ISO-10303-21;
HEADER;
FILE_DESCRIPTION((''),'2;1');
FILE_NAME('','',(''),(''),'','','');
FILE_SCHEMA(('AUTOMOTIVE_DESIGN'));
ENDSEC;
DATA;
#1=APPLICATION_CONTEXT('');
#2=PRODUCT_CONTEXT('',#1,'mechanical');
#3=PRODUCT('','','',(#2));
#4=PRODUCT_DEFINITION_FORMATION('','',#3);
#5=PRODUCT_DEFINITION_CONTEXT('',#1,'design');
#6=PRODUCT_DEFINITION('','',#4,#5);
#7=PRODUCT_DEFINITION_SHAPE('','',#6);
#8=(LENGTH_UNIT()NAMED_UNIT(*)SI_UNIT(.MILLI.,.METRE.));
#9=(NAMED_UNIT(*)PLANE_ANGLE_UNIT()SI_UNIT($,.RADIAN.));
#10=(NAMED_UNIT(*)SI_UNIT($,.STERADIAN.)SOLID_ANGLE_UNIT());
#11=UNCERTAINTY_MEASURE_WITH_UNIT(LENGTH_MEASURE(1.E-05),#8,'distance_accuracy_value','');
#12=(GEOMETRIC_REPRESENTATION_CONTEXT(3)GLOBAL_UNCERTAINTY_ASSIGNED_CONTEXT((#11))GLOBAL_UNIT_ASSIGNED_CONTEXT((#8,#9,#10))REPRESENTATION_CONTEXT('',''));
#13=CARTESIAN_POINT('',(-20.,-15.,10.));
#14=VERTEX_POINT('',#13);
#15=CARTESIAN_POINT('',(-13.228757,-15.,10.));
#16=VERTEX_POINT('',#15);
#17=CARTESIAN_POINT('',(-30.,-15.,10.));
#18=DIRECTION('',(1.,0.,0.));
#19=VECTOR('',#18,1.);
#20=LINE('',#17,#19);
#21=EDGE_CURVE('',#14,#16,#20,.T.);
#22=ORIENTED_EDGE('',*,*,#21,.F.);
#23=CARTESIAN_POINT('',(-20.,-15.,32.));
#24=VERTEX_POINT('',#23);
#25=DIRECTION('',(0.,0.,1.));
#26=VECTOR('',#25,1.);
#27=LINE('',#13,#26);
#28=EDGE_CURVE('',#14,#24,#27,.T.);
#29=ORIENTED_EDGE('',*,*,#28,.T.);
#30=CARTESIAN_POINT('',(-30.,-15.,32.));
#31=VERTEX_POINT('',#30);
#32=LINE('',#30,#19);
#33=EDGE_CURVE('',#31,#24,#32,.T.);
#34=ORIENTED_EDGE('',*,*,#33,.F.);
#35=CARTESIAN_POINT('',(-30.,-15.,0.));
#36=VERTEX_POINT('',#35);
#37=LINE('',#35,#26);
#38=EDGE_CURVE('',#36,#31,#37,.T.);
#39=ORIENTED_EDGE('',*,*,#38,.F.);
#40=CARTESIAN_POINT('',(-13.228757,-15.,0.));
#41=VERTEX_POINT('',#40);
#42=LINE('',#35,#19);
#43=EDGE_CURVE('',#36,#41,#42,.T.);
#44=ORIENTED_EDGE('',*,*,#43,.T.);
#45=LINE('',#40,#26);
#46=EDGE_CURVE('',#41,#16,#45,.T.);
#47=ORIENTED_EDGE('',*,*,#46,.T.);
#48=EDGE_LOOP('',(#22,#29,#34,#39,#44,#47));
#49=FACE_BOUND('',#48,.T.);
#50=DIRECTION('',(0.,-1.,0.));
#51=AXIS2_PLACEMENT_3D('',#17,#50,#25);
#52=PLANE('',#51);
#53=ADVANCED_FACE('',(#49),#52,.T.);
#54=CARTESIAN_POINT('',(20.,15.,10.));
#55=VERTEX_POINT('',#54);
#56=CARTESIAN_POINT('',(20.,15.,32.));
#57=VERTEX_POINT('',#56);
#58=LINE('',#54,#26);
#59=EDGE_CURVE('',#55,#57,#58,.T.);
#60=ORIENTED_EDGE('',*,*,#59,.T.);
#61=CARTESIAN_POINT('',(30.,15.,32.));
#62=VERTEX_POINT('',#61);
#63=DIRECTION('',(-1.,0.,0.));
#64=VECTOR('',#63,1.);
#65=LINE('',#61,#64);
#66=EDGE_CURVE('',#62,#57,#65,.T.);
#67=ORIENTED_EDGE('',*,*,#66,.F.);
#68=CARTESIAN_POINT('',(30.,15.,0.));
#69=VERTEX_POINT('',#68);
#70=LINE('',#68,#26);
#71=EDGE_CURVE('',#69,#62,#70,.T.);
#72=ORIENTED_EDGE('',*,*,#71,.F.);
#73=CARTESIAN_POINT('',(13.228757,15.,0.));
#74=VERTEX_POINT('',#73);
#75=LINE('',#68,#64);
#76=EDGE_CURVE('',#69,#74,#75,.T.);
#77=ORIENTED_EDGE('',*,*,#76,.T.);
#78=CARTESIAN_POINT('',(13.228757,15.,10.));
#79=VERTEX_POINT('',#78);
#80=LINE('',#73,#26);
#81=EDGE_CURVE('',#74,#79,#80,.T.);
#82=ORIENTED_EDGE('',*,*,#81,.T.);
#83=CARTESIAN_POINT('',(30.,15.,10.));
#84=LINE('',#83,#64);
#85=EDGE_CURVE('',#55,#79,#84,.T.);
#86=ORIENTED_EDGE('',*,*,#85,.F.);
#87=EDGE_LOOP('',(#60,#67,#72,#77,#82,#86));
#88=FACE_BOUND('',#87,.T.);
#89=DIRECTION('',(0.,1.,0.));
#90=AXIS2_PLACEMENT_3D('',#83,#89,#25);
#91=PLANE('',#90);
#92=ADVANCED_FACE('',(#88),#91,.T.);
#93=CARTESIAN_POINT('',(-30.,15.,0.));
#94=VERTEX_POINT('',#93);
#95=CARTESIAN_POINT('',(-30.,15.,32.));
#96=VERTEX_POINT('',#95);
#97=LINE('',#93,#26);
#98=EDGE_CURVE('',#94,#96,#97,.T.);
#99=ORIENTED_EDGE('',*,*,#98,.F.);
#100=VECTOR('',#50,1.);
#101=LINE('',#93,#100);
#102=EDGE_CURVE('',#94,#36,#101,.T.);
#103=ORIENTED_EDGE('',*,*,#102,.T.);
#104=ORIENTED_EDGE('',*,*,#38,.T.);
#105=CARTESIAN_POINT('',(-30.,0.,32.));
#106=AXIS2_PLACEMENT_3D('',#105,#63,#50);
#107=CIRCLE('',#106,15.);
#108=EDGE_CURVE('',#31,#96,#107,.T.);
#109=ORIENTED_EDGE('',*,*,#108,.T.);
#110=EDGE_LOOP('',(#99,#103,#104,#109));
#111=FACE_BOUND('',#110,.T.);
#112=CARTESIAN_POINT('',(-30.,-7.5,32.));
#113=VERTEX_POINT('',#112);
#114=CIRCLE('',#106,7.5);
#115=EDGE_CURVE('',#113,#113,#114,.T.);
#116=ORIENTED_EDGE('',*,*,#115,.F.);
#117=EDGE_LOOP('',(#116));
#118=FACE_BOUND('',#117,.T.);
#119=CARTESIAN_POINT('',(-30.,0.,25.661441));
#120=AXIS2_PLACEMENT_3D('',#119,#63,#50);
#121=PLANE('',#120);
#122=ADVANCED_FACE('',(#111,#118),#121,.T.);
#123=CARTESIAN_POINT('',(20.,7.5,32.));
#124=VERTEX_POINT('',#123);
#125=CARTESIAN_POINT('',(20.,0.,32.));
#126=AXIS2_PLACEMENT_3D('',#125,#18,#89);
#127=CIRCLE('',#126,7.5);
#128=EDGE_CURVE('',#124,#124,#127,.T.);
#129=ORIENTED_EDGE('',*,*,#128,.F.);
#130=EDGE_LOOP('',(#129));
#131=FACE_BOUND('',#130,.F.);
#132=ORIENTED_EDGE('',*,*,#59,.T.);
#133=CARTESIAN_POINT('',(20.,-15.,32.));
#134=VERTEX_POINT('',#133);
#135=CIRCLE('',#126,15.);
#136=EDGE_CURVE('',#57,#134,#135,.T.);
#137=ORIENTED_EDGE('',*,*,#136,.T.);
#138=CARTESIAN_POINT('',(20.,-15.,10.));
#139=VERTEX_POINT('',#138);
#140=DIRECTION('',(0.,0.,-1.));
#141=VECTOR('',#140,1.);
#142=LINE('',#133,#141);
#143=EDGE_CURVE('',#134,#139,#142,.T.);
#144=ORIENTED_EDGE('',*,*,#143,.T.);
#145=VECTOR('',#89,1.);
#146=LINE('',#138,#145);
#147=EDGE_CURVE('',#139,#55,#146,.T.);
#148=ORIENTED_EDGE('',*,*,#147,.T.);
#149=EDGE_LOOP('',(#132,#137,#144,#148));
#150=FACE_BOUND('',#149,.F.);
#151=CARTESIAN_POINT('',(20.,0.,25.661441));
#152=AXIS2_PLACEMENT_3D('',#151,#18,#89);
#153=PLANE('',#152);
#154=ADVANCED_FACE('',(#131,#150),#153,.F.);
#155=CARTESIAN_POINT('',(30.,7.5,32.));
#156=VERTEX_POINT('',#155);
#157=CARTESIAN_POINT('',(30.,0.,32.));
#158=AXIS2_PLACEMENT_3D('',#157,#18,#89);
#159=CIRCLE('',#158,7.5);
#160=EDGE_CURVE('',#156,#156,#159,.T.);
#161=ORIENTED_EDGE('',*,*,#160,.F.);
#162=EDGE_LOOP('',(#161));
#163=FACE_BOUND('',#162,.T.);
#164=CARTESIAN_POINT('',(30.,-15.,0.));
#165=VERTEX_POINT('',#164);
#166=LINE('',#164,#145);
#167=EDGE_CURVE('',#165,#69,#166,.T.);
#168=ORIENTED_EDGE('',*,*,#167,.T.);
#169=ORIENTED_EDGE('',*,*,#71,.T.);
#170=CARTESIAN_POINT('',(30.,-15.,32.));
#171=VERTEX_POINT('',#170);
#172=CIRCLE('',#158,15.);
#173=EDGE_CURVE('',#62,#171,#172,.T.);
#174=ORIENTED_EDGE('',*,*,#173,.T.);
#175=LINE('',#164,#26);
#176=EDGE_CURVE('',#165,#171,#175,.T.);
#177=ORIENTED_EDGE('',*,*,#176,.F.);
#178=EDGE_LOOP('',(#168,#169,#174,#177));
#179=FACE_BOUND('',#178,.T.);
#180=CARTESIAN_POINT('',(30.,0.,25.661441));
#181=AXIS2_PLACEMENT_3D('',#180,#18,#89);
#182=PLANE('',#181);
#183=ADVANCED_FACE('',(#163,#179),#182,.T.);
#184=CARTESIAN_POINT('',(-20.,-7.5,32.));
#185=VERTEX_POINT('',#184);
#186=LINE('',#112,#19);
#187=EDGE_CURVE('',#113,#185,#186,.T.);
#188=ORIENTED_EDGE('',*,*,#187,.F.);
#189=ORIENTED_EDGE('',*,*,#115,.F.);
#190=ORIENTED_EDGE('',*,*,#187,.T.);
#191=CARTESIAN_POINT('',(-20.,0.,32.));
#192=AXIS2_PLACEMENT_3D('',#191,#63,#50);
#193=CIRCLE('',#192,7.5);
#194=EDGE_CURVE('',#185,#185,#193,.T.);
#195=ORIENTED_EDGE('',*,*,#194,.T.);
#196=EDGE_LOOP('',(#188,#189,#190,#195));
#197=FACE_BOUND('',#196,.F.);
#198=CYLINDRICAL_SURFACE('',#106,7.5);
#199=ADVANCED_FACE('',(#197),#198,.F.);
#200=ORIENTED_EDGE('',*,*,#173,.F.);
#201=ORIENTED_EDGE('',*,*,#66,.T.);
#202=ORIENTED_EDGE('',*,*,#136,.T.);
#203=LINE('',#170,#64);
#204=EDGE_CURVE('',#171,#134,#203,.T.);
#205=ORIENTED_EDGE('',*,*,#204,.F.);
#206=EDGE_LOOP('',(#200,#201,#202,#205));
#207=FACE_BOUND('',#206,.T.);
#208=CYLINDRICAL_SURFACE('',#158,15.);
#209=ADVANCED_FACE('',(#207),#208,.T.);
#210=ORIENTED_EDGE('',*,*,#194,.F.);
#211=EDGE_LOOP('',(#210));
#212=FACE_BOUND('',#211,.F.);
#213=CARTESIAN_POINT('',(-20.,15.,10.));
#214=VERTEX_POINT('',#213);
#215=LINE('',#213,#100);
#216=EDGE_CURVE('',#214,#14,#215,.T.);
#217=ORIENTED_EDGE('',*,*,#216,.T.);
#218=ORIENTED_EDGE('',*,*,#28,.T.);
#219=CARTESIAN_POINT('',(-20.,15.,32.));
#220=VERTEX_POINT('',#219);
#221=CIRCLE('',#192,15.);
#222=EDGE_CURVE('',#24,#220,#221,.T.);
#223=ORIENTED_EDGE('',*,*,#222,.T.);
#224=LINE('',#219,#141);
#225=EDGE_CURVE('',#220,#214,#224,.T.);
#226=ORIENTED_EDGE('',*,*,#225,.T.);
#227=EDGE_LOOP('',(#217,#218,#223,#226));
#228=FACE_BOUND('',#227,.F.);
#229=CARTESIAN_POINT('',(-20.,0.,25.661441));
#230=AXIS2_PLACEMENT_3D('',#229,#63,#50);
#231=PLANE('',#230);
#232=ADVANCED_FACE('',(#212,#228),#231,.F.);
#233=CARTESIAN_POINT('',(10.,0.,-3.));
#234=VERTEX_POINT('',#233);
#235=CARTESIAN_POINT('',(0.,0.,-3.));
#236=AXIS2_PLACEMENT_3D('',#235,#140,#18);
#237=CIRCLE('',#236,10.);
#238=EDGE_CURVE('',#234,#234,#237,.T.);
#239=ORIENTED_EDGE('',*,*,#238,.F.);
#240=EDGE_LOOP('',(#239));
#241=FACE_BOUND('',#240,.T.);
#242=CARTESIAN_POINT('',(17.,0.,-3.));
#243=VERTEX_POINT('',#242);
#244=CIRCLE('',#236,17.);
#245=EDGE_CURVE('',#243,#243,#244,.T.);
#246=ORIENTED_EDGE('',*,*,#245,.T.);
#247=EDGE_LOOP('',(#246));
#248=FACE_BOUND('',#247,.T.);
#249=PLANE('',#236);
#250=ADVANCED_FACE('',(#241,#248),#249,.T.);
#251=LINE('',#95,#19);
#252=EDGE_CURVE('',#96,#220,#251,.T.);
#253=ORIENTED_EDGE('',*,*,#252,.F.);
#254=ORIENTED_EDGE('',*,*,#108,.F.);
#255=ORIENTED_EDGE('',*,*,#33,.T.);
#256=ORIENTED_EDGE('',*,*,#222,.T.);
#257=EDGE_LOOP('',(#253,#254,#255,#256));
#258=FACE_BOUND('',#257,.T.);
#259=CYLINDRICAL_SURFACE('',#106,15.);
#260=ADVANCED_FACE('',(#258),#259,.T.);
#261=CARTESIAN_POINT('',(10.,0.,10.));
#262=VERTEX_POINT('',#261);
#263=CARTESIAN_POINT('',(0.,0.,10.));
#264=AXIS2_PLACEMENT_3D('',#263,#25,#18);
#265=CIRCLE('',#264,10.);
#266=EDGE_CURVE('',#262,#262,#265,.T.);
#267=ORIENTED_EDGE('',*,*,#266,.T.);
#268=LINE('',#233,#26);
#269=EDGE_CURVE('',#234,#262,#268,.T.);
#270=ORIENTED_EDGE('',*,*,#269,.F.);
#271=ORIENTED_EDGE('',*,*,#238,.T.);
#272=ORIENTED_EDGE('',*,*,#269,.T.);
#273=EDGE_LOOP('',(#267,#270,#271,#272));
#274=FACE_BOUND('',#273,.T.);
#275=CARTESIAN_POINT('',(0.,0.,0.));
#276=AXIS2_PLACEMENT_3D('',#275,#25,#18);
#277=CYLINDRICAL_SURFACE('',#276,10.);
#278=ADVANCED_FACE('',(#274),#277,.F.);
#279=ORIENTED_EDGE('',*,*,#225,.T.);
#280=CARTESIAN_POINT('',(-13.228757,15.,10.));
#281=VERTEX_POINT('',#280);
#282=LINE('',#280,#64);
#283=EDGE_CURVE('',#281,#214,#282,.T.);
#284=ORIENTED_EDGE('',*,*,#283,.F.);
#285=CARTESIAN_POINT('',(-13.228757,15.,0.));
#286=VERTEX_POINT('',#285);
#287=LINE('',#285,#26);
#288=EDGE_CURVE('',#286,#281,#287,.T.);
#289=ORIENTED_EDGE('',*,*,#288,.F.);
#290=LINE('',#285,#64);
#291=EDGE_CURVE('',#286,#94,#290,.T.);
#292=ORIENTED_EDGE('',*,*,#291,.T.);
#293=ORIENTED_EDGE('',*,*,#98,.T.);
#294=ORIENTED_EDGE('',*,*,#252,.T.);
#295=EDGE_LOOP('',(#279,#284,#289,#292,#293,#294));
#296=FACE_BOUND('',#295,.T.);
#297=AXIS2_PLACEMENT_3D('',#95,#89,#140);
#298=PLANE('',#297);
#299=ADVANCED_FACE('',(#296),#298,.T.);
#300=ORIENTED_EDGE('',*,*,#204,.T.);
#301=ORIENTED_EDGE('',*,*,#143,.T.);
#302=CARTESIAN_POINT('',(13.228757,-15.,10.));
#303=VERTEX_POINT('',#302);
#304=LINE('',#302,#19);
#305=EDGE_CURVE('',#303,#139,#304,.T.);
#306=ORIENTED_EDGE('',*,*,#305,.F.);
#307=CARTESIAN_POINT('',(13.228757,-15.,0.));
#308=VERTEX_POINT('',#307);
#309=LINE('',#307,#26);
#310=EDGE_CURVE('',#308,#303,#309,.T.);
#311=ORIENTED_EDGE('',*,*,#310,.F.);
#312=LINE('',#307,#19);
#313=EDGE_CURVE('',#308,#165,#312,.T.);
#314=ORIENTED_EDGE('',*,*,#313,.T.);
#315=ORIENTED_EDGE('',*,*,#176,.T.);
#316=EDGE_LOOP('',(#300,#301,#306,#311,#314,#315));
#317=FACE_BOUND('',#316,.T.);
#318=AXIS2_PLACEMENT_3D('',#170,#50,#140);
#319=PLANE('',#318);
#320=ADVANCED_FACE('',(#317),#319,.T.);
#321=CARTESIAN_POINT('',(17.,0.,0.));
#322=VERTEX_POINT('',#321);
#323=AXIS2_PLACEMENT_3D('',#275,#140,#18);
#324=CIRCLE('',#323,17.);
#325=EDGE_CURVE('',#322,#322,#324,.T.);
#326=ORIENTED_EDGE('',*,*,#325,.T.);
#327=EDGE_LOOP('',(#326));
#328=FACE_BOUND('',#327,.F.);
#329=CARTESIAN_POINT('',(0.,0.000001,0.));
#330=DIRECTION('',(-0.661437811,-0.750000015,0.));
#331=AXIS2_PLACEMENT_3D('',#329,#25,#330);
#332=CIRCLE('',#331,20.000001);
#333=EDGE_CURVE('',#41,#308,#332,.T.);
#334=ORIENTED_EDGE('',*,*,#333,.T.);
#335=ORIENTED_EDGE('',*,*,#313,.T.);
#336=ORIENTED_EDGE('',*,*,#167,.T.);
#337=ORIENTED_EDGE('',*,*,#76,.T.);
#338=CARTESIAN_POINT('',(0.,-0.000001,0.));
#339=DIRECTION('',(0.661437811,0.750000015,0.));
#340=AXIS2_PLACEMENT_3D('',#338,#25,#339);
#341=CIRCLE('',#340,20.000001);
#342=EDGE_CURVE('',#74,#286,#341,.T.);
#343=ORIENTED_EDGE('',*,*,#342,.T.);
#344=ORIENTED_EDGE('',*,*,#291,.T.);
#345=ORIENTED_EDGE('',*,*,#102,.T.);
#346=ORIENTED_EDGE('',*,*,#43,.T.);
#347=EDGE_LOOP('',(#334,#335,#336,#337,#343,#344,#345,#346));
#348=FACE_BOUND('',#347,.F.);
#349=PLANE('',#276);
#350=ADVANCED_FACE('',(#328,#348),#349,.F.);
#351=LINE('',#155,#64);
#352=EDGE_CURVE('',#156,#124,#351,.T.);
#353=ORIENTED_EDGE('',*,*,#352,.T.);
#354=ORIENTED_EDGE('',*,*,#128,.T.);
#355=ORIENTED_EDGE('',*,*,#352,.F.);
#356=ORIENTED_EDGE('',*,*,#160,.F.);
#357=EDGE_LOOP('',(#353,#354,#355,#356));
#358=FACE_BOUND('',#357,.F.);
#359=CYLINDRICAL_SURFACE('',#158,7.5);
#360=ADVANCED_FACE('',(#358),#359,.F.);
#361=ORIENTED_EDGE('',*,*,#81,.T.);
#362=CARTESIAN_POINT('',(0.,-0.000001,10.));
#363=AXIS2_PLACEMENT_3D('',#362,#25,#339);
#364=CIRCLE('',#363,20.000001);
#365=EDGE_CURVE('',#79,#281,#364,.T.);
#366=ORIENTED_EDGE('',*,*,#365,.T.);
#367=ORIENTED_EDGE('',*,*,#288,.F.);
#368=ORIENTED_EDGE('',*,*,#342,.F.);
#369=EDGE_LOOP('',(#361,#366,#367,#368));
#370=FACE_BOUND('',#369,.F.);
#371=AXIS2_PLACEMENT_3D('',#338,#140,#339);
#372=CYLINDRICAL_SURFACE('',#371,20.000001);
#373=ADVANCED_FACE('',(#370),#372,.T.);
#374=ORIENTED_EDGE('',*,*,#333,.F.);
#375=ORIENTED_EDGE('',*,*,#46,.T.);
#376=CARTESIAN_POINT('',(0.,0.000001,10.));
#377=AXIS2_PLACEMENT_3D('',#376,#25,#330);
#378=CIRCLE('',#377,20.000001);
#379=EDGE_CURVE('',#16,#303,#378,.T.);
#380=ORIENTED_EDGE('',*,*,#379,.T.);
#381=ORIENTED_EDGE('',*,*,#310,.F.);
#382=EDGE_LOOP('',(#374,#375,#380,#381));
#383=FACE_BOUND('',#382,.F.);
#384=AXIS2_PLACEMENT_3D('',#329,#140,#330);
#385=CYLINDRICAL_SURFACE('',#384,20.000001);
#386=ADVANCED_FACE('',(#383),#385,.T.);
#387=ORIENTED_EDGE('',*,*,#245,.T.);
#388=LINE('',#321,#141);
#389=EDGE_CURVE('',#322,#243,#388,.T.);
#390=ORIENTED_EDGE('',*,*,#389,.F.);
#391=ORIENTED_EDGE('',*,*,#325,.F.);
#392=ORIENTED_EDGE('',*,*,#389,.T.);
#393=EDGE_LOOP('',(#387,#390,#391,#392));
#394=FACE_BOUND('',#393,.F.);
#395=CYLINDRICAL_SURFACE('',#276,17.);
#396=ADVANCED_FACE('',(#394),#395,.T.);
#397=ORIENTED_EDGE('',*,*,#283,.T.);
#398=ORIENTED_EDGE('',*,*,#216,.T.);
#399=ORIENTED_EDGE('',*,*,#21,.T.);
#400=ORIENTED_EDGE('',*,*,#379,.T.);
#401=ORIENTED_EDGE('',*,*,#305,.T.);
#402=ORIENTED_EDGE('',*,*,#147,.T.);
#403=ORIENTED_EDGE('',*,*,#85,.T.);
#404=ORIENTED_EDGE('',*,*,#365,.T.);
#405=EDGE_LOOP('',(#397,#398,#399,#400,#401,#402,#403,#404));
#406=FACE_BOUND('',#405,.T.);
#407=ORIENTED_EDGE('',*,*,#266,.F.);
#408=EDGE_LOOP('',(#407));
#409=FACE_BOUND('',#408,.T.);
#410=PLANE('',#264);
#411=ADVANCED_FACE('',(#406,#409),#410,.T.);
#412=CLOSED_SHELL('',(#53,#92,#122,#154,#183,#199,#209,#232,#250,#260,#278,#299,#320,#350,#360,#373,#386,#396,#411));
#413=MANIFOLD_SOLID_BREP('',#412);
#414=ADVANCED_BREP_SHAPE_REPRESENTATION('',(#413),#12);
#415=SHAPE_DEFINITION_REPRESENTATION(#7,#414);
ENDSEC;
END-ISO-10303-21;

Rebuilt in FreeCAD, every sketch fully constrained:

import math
import FreeCAD as App
import Part
import Sketcher

V = App.Vector

doc = App.newDocument("Part")
body = doc.addObject("PartDesign::Body", "Body")

sketch1 = body.newObject("Sketcher::SketchObject", "Sketch")
sketch1.AttachmentSupport = (doc.getObject("XY_Plane"), [""])
sketch1.MapMode = "FlatFace"
sketch1.addGeometry(Part.LineSegment(V(-30, -15, 0), V(-13.228757, -15, 0)), False)
sketch1.addGeometry(Part.ArcOfCircle(Part.Circle(V(0, 0.000001, 0), V(0, 0, 1), 20.000001), math.radians(-131.409621), math.radians(-48.590379)), False)
sketch1.addGeometry(Part.LineSegment(V(13.228757, -15, 0), V(30, -15, 0)), False)
sketch1.addGeometry(Part.LineSegment(V(30, -15, 0), V(30, 15, 0)), False)
sketch1.addGeometry(Part.LineSegment(V(30, 15, 0), V(13.228757, 15, 0)), False)
sketch1.addGeometry(Part.ArcOfCircle(Part.Circle(V(0, -0.000001, 0), V(0, 0, 1), 20.000001), math.radians(48.590379), math.radians(131.409621)), False)
sketch1.addGeometry(Part.LineSegment(V(-13.228757, 15, 0), V(-30, 15, 0)), False)
sketch1.addGeometry(Part.LineSegment(V(-30, 15, 0), V(-30, -15, 0)), False)
sketch1.addGeometry(Part.Circle(V(0, 0, 0), V(0, 0, 1), 10), False)
sketch1.addConstraint(Sketcher.Constraint("Coincident", 0, 2, 1, 1))
sketch1.addConstraint(Sketcher.Constraint("Coincident", 1, 2, 2, 1))
sketch1.addConstraint(Sketcher.Constraint("Coincident", 2, 2, 3, 1))
sketch1.addConstraint(Sketcher.Constraint("Coincident", 3, 2, 4, 1))
sketch1.addConstraint(Sketcher.Constraint("Coincident", 4, 2, 5, 1))
sketch1.addConstraint(Sketcher.Constraint("Coincident", 5, 2, 6, 1))
sketch1.addConstraint(Sketcher.Constraint("Coincident", 6, 2, 7, 1))
sketch1.addConstraint(Sketcher.Constraint("Coincident", 7, 2, 0, 1))
sketch1.addConstraint(Sketcher.Constraint("Horizontal", 0))
sketch1.addConstraint(Sketcher.Constraint("Horizontal", 2))
sketch1.addConstraint(Sketcher.Constraint("Vertical", 3))
sketch1.addConstraint(Sketcher.Constraint("Horizontal", 4))
sketch1.addConstraint(Sketcher.Constraint("Horizontal", 6))
sketch1.addConstraint(Sketcher.Constraint("Vertical", 7))
sketch1.addConstraint(Sketcher.Constraint("Coincident", 1, 3, -1, 1))
sketch1.addConstraint(Sketcher.Constraint("Coincident", 5, 3, -1, 1))
sketch1.addConstraint(Sketcher.Constraint("Coincident", 8, 3, -1, 1))
sketch1.addConstraint(Sketcher.Constraint("Equal", 1, 5))
sketch1.addConstraint(Sketcher.Constraint("Symmetric", 2, 2, 6, 2, -1, 1))
sketch1.addConstraint(Sketcher.Constraint("Horizontal", 0, 2, 1, 2))
sketch1.addConstraint(Sketcher.Constraint("Horizontal", 4, 2, 5, 2))
sketch1.addConstraint(Sketcher.Constraint("Diameter", 8, 20.0))
sketch1.addConstraint(Sketcher.Constraint("Radius", 1, 20.000001))
sketch1.addConstraint(Sketcher.Constraint("DistanceY", 3, 1, 3, 2, 30.0))
sketch1.addConstraint(Sketcher.Constraint("DistanceX", -1, 1, 2, 2, 30.0))
pad1 = body.newObject("PartDesign::Pad", "Pad")
pad1.Profile = sketch1
pad1.Length = 10

sketch2 = body.newObject("Sketcher::SketchObject", "Sketch001")
sketch2.AttachmentSupport = (doc.getObject("XY_Plane"), [""])
sketch2.MapMode = "FlatFace"
sketch2.addGeometry(Part.Circle(V(0, 0, 0), V(0, 0, 1), 17), False)
sketch2.addGeometry(Part.Circle(V(0, 0, 0), V(0, 0, 1), 10), False)
sketch2.addConstraint(Sketcher.Constraint("Coincident", 0, 3, -1, 1))
sketch2.addConstraint(Sketcher.Constraint("Coincident", 1, 3, -1, 1))
sketch2.addConstraint(Sketcher.Constraint("Diameter", 0, 34.0))
sketch2.addConstraint(Sketcher.Constraint("Diameter", 1, 20.0))
pad2 = body.newObject("PartDesign::Pad", "Pad001")
pad2.Profile = sketch2
pad2.Length = 3
pad2.Reversed = True

sketch3 = body.newObject("Sketcher::SketchObject", "Sketch002")
sketch3.AttachmentSupport = (doc.getObject("YZ_Plane"), [""])
sketch3.MapMode = "FlatFace"
sketch3.AttachmentOffset = App.Placement(V(0, 0, -30), App.Rotation())
sketch3.addGeometry(Part.LineSegment(V(15, 32, 0), V(15, 10, 0)), False)
sketch3.addGeometry(Part.LineSegment(V(15, 10, 0), V(-15, 10, 0)), False)
sketch3.addGeometry(Part.LineSegment(V(-15, 10, 0), V(-15, 32, 0)), False)
sketch3.addGeometry(Part.ArcOfCircle(Part.Circle(V(0, 32, 0), V(0, 0, 1), 15), math.radians(0), math.radians(180)), False)
sketch3.addGeometry(Part.Circle(V(0, 32, 0), V(0, 0, 1), 7.5), False)
sketch3.addConstraint(Sketcher.Constraint("Coincident", 0, 2, 1, 1))
sketch3.addConstraint(Sketcher.Constraint("Coincident", 1, 2, 2, 1))
sketch3.addConstraint(Sketcher.Constraint("Tangent", 2, 2, 3, 2))
sketch3.addConstraint(Sketcher.Constraint("Tangent", 3, 1, 0, 1))
sketch3.addConstraint(Sketcher.Constraint("Vertical", 0))
sketch3.addConstraint(Sketcher.Constraint("Horizontal", 1))
sketch3.addConstraint(Sketcher.Constraint("Vertical", 2))
sketch3.addConstraint(Sketcher.Constraint("Coincident", 4, 3, 3, 3))
sketch3.addConstraint(Sketcher.Constraint("PointOnObject", 3, 3, -2))
sketch3.addConstraint(Sketcher.Constraint("Diameter", 4, 15.0))
sketch3.addConstraint(Sketcher.Constraint("Radius", 3, 15.0))
sketch3.addConstraint(Sketcher.Constraint("DistanceY", 0, 2, 0, 1, 22.0))
sketch3.addConstraint(Sketcher.Constraint("DistanceY", -1, 1, 3, 3, 32.0))
pad3 = body.newObject("PartDesign::Pad", "Pad002")
pad3.Profile = sketch3
pad3.Length = 10

sketch4 = body.newObject("Sketcher::SketchObject", "Sketch003")
sketch4.AttachmentSupport = (doc.getObject("YZ_Plane"), [""])
sketch4.MapMode = "FlatFace"
sketch4.AttachmentOffset = App.Placement(V(0, 0, 30), App.Rotation())
sketch4.addGeometry(Part.LineSegment(V(-15, 32, 0), V(-15, 10, 0)), False)
sketch4.addGeometry(Part.LineSegment(V(-15, 10, 0), V(15, 10, 0)), False)
sketch4.addGeometry(Part.LineSegment(V(15, 10, 0), V(15, 32, 0)), False)
sketch4.addGeometry(Part.ArcOfCircle(Part.Circle(V(0, 32, 0), V(0, 0, 1), 15), math.radians(0), math.radians(180)), False)
sketch4.addGeometry(Part.Circle(V(0, 32, 0), V(0, 0, 1), 7.5), False)
sketch4.addConstraint(Sketcher.Constraint("Coincident", 0, 2, 1, 1))
sketch4.addConstraint(Sketcher.Constraint("Coincident", 1, 2, 2, 1))
sketch4.addConstraint(Sketcher.Constraint("Tangent", 2, 2, 3, 1))
sketch4.addConstraint(Sketcher.Constraint("Tangent", 3, 2, 0, 1))
sketch4.addConstraint(Sketcher.Constraint("Vertical", 0))
sketch4.addConstraint(Sketcher.Constraint("Horizontal", 1))
sketch4.addConstraint(Sketcher.Constraint("Vertical", 2))
sketch4.addConstraint(Sketcher.Constraint("Coincident", 4, 3, 3, 3))
sketch4.addConstraint(Sketcher.Constraint("PointOnObject", 3, 3, -2))
sketch4.addConstraint(Sketcher.Constraint("Diameter", 4, 15.0))
sketch4.addConstraint(Sketcher.Constraint("Radius", 3, 15.0))
sketch4.addConstraint(Sketcher.Constraint("DistanceY", 0, 2, 0, 1, 22.0))
sketch4.addConstraint(Sketcher.Constraint("DistanceY", -1, 1, 3, 3, 32.0))
pad4 = body.newObject("PartDesign::Pad", "Pad003")
pad4.Profile = sketch4
pad4.Length = 10
pad4.Reversed = True

doc.recompute()
